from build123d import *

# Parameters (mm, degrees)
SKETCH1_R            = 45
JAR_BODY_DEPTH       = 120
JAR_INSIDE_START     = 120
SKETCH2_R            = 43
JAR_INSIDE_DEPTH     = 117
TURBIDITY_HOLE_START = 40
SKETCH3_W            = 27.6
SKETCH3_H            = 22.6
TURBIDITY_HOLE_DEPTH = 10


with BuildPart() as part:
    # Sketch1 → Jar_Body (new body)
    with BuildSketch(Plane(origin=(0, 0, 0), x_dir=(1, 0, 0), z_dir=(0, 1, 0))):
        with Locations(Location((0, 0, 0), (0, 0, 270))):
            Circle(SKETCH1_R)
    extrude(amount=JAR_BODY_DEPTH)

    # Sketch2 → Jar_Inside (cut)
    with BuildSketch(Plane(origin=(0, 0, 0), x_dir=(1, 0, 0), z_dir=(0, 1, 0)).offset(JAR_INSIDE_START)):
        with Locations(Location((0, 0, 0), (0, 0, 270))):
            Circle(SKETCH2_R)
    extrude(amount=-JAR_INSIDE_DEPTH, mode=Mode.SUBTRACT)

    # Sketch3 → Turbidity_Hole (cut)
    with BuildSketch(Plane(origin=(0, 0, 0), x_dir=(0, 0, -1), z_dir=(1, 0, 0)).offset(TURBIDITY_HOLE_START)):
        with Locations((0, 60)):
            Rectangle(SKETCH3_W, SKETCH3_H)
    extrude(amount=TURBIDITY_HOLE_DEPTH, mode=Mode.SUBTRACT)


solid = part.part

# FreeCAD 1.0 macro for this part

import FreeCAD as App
import Part
import Sketcher

doc = App.newDocument("Part")
params = doc.addObject("Spreadsheet::Sheet", "Params")
for row, (alias, value) in enumerate([
    ("sketch1_diameter", "90 mm"),
    ("pad1_length", "120 mm"),
    ("sketch2_diameter", "86 mm"),
    ("pocket1_length", "117 mm"),
    ("sketch3_width", "22.6 mm"),
    ("sketch3_height", "27.6 mm"),
    ("pocket2_length", "10 mm"),
], start=1):
    params.set(f"A{row}", alias)
    params.set(f"B{row}", "=" + value)
    params.setAlias(f"B{row}", alias)

body = doc.addObject("PartDesign::Body", "Body")

sketch1 = body.newObject("Sketcher::SketchObject", "Sketch")
sketch1.AttachmentSupport = (doc.getObject("XZ_Plane"), [""])
sketch1.MapMode = "FlatFace"
sketch1.addGeometry(Part.Circle(App.Vector(0, 0, 0), App.Vector(0, 0, 1), 45), False)
sketch1.addConstraint([
    Sketcher.Constraint("Coincident", 0, 3, -1, 1),
    Sketcher.Constraint("Diameter", 0, 90.0),
])
sketch1.setExpression("Constraints[1]", "Params.sketch1_diameter")
pad1 = body.newObject("PartDesign::Pad", "Pad")
pad1.Profile = sketch1
pad1.setExpression("Length", "Params.pad1_length")
pad1.Reversed = True

sketch2 = body.newObject("Sketcher::SketchObject", "Sketch001")
sketch2.AttachmentSupport = (doc.getObject("XZ_Plane"), [""])
sketch2.MapMode = "FlatFace"
sketch2.AttachmentOffset = App.Placement(App.Vector(0, 0, -120), App.Rotation())
sketch2.addGeometry(Part.Circle(App.Vector(0, 0, 0), App.Vector(0, 0, 1), 43), False)
sketch2.addConstraint([
    Sketcher.Constraint("Coincident", 0, 3, -1, 1),
    Sketcher.Constraint("Diameter", 0, 86.0),
])
sketch2.setExpression("Constraints[1]", "Params.sketch2_diameter")
pocket1 = body.newObject("PartDesign::Pocket", "Pocket")
pocket1.Profile = sketch2
pocket1.setExpression("Length", "Params.pocket1_length")
pocket1.Reversed = True

sketch3 = body.newObject("Sketcher::SketchObject", "Sketch002")
sketch3.AttachmentSupport = (doc.getObject("YZ_Plane"), [""])
sketch3.MapMode = "FlatFace"
sketch3.AttachmentOffset = App.Placement(App.Vector(0, 0, 40), App.Rotation())
sketch3.addGeometry([
    Part.LineSegment(App.Vector(71, 14, 0), App.Vector(49, 14, 0)),
    Part.LineSegment(App.Vector(49, 14, 0), App.Vector(49, -14, 0)),
    Part.LineSegment(App.Vector(49, -14, 0), App.Vector(71, -14, 0)),
    Part.LineSegment(App.Vector(71, -14, 0), App.Vector(71, 14, 0)),
], False)
sketch3.addConstraint([
    Sketcher.Constraint("Coincident", 0, 2, 1, 1),
    Sketcher.Constraint("Coincident", 1, 2, 2, 1),
    Sketcher.Constraint("Coincident", 2, 2, 3, 1),
    Sketcher.Constraint("Coincident", 3, 2, 0, 1),
    Sketcher.Constraint("Horizontal", 0),
    Sketcher.Constraint("Vertical", 1),
    Sketcher.Constraint("Horizontal", 2),
    Sketcher.Constraint("Vertical", 3),
    Sketcher.Constraint("DistanceX", 0, 2, 0, 1, 22.6),
    Sketcher.Constraint("DistanceY", 1, 2, 1, 1, 27.6),
    Sketcher.Constraint("DistanceX", -1, 1, 0, 2, 48.7),
    Sketcher.Constraint("DistanceY", -1, 1, 0, 2, 13.8),
])
sketch3.setExpression("Constraints[8]", "Params.sketch3_width")
sketch3.setExpression("Constraints[9]", "Params.sketch3_height")
pocket2 = body.newObject("PartDesign::Pocket", "Pocket001")
pocket2.Profile = sketch3
pocket2.setExpression("Length", "Params.pocket2_length")
pocket2.Reversed = True

doc.recompute()
